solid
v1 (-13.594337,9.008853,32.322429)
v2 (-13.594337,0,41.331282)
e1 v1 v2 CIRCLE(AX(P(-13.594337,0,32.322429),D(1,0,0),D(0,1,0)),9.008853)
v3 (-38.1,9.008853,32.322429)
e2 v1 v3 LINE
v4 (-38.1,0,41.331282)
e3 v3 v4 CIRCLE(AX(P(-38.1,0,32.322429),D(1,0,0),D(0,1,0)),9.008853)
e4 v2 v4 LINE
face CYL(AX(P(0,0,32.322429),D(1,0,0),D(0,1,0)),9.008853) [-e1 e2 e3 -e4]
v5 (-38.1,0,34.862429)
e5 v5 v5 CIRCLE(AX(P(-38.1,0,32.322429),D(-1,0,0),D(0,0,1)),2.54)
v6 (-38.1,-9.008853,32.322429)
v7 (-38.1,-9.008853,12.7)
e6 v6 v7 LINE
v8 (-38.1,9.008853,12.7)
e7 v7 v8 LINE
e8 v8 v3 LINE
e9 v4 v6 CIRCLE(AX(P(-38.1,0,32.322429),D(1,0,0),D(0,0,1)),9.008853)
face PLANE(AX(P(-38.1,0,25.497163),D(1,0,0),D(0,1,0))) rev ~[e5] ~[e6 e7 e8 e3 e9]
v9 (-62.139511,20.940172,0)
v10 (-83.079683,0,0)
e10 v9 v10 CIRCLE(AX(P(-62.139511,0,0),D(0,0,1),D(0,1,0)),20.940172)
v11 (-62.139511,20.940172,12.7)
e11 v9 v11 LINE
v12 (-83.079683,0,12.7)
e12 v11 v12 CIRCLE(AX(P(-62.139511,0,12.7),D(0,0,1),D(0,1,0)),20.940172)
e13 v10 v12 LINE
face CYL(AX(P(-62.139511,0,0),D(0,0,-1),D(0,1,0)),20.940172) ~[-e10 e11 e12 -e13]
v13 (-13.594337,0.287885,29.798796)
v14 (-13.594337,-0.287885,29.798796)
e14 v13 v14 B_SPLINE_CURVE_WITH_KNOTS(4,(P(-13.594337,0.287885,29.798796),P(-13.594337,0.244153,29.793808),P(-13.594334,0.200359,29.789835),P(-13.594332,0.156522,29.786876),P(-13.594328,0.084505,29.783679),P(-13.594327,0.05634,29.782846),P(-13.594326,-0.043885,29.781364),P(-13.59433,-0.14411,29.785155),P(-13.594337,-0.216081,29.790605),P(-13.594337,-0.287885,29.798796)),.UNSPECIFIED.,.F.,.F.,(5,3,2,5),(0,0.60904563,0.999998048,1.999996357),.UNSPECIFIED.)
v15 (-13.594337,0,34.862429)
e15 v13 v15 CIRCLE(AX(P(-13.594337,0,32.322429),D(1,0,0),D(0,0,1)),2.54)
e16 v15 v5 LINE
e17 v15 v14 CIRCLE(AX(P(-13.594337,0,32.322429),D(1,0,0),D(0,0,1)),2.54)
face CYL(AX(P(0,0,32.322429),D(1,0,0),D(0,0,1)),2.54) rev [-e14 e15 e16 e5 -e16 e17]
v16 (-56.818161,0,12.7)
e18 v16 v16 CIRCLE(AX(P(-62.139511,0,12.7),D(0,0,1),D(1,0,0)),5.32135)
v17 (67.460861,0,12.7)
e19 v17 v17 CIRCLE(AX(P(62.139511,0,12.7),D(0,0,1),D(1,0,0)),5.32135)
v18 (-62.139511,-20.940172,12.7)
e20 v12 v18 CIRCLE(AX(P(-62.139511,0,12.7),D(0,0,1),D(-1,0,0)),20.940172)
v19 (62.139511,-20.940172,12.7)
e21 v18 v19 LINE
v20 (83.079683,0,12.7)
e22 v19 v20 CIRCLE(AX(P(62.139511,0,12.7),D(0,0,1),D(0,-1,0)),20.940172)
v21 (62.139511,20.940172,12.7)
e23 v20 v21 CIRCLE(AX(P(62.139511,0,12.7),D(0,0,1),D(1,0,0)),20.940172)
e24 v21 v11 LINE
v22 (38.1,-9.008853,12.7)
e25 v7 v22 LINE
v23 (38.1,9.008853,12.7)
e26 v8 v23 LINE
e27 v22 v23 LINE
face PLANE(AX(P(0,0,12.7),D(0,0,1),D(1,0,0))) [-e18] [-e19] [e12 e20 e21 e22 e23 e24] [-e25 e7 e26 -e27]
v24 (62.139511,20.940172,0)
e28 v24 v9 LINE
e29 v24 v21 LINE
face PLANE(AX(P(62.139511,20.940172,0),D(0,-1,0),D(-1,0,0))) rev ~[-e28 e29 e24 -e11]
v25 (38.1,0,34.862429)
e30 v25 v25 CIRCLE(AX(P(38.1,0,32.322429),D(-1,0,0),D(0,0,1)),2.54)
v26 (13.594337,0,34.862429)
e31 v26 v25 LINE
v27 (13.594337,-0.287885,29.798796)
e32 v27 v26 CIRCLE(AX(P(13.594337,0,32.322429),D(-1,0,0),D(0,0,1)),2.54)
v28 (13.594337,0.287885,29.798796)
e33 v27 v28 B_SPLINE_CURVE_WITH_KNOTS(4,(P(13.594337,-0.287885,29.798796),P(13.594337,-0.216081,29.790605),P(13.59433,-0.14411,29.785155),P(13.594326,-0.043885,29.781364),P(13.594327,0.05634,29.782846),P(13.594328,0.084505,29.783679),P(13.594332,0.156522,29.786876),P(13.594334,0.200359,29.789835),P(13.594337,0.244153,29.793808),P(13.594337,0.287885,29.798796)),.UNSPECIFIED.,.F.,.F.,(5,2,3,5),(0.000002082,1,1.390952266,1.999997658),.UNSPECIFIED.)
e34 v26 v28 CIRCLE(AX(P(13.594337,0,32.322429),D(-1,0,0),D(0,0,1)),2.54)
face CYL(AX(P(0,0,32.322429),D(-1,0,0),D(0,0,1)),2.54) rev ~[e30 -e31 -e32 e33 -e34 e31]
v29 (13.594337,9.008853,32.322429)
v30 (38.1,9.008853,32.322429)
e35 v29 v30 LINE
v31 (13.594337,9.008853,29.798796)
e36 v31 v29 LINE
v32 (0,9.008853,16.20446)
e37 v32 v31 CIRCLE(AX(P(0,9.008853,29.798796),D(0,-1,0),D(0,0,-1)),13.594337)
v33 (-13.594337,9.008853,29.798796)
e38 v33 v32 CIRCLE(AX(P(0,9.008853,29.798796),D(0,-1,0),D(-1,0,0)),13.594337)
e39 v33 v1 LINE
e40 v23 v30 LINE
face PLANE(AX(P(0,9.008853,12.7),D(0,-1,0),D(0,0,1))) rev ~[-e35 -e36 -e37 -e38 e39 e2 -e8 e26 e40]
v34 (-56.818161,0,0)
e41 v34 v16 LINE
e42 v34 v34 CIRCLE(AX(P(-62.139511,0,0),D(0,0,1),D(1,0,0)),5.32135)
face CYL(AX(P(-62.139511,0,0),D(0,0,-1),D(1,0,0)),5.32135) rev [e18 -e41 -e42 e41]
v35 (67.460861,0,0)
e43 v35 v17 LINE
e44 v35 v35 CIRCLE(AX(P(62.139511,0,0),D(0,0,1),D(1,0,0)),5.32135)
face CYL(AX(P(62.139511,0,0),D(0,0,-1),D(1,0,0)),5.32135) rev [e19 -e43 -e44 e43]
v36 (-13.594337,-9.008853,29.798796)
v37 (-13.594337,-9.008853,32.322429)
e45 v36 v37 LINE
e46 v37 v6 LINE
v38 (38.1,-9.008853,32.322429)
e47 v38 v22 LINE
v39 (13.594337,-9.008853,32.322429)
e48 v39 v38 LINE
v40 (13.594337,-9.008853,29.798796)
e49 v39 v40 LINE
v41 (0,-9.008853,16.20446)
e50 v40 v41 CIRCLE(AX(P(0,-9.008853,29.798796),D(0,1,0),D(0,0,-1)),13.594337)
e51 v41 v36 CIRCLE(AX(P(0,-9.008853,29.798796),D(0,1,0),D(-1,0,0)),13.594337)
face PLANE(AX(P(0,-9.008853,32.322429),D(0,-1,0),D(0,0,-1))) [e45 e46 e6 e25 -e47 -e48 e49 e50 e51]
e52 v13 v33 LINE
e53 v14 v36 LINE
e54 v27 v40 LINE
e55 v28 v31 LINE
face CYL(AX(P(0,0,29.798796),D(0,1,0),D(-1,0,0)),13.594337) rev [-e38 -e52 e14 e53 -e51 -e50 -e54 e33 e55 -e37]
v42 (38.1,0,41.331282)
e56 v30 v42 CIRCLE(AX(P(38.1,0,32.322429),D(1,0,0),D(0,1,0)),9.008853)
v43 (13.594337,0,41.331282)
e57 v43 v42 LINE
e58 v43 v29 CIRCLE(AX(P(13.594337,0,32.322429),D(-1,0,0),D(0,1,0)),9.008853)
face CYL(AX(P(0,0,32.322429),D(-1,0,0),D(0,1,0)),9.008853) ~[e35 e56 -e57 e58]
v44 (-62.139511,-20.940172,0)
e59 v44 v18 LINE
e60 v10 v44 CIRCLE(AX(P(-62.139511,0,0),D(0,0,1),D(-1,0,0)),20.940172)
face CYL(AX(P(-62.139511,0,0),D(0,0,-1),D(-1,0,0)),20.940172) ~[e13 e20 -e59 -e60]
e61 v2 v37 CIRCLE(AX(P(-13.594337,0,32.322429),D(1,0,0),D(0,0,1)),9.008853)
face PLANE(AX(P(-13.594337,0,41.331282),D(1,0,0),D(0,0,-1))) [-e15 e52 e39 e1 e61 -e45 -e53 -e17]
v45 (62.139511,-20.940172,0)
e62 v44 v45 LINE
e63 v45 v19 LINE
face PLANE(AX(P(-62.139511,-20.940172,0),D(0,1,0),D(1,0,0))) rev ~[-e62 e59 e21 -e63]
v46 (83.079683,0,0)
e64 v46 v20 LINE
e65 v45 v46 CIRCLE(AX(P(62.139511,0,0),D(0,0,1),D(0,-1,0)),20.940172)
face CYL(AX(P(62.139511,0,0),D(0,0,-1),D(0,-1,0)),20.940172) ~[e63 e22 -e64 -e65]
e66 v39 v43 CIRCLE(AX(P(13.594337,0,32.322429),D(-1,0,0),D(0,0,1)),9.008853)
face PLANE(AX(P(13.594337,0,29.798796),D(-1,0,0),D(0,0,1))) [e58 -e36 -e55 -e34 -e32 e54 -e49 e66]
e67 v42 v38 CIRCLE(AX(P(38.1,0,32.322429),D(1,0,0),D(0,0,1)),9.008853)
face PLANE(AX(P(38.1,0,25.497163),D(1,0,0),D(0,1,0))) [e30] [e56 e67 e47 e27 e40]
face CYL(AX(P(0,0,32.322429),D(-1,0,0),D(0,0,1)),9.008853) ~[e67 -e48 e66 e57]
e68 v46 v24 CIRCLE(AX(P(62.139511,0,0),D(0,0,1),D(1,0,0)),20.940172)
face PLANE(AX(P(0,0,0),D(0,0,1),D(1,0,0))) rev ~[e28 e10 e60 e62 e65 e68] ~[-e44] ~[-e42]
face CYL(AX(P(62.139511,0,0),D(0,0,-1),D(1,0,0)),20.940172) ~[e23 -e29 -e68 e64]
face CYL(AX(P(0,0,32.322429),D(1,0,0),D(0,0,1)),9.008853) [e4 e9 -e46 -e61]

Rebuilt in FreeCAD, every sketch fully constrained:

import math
import FreeCAD as App
import Part
import Sketcher
Q = App.Units.Quantity

doc = App.newDocument("Part")
body = doc.addObject("PartDesign::Body", "Body")

# Sketch on XY plane
sketch1 = body.newObject("Sketcher::SketchObject", "Sketch")
sketch1.AttachmentSupport = (doc.getObject("XY_Plane"), [""])
sketch1.MapMode = "FlatFace"
sketch1.addGeometry([
    Part.LineSegment(App.Vector(62.139511, 20.940172, 0), App.Vector(-62.139511, 20.940172, 0)),  # 0
    Part.ArcOfCircle(Part.Circle(App.Vector(-62.139511, 0, 0), App.Vector(0, 0, 1), 20.940172), math.radians(90), math.radians(180)),  # 1
    Part.ArcOfCircle(Part.Circle(App.Vector(-62.139511, 0, 0), App.Vector(0, 0, 1), 20.940172), math.radians(180), math.radians(270)),  # 2
    Part.LineSegment(App.Vector(-62.139511, -20.940172, 0), App.Vector(62.139511, -20.940172, 0)),  # 3
    Part.ArcOfCircle(Part.Circle(App.Vector(62.139511, 0, 0), App.Vector(0, 0, 1), 20.940172), math.radians(-90), math.radians(0)),  # 4
    Part.ArcOfCircle(Part.Circle(App.Vector(62.139511, 0, 0), App.Vector(0, 0, 1), 20.940172), math.radians(0), math.radians(90)),  # 5
    Part.Circle(App.Vector(-62.139511, 0, 0), App.Vector(0, 0, 1), 5.32135),  # 6
    Part.Circle(App.Vector(62.139511, 0, 0), App.Vector(0, 0, 1), 5.32135),  # 7
], False)
sketch1.addConstraint([
    Sketcher.Constraint("Tangent", 0, 2, 1, 1),
    Sketcher.Constraint("Tangent", 1, 2, 2, 1),
    Sketcher.Constraint("Tangent", 2, 2, 3, 1),
    Sketcher.Constraint("Tangent", 3, 2, 4, 1),
    Sketcher.Constraint("Tangent", 4, 2, 5, 1),
    Sketcher.Constraint("Tangent", 5, 2, 0, 1),
    Sketcher.Constraint("Horizontal", 0),
    Sketcher.Constraint("Horizontal", 3),
    Sketcher.Constraint("Coincident", 6, 3, 1, 3),
    Sketcher.Constraint("Coincident", 7, 3, 4, 3),
    Sketcher.Constraint("Equal", 1, 2),
    Sketcher.Constraint("Equal", 2, 4),
    Sketcher.Constraint("Equal", 6, 7),
    Sketcher.Constraint("Symmetric", 1, 3, 4, 3, -1, 1),
    Sketcher.Constraint("PointOnObject", 1, 2, -1),
    Sketcher.Constraint("PointOnObject", 4, 2, -1),
    Sketcher.Constraint("Diameter", 6, Q("10.6427 mm")),
    Sketcher.Constraint("Radius", 1, Q("20.940172 mm")),
    Sketcher.Constraint("DistanceX", 0, 2, 0, 1, Q("124.279022 mm")),
])
pad1 = body.newObject("PartDesign::Pad", "Pad")
pad1.Profile = sketch1
pad1.Length = Q("0.5 in")

# Sketch on YZ plane
sketch2 = body.newObject("Sketcher::SketchObject", "Sketch001")
sketch2.AttachmentSupport = (doc.getObject("YZ_Plane"), [""])
sketch2.MapMode = "FlatFace"
sketch2.addGeometry([
    Part.LineSegment(App.Vector(-9.008853, 12.7, 0), App.Vector(9.008853, 12.7, 0)),  # 0
    Part.LineSegment(App.Vector(9.008853, 12.7, 0), App.Vector(9.008853, 32.322429, 0)),  # 1
    Part.ArcOfCircle(Part.Circle(App.Vector(0, 32.322429, 0), App.Vector(0, 0, 1), 9.008853), math.radians(0), math.radians(90)),  # 2
    Part.ArcOfCircle(Part.Circle(App.Vector(0, 32.322429, 0), App.Vector(0, 0, 1), 9.008853), math.radians(90), math.radians(180)),  # 3
    Part.LineSegment(App.Vector(-9.008853, 32.322429, 0), App.Vector(-9.008853, 12.7, 0)),  # 4
    Part.Circle(App.Vector(0, 32.322429, 0), App.Vector(0, 0, 1), 2.54),  # 5
], False)
sketch2.addConstraint([
    Sketcher.Constraint("Coincident", 0, 2, 1, 1),
    Sketcher.Constraint("Tangent", 1, 2, 2, 1),
    Sketcher.Constraint("Tangent", 2, 2, 3, 1),
    Sketcher.Constraint("Tangent", 3, 2, 4, 1),
    Sketcher.Constraint("Coincident", 4, 2, 0, 1),
    Sketcher.Constraint("Horizontal", 0),
    Sketcher.Constraint("Vertical", 1),
    Sketcher.Constraint("Vertical", 4),
    Sketcher.Constraint("Coincident", 5, 3, 2, 3),
    Sketcher.Constraint("Equal", 2, 3),
    Sketcher.Constraint("PointOnObject", 2, 3, -2),
    Sketcher.Constraint("PointOnObject", 2, 2, -2),
    Sketcher.Constraint("Diameter", 5, Q("0.2 in")),
    Sketcher.Constraint("DistanceY", -1, 1, 0, 2, Q("0.5 in")),
    Sketcher.Constraint("Radius", 2, Q("9.008853 mm")),
    Sketcher.Constraint("DistanceY", 1, 1, 1, 2, Q("19.622429 mm")),
])
pad2 = body.newObject("PartDesign::Pad", "Pad001")
pad2.Profile = sketch2
pad2.Type = "TwoLengths"
pad2.Length = Q("1.5 in")
pad2.Length2 = Q("1.5 in")

# Sketch on XZ plane
sketch3 = body.newObject("Sketcher::SketchObject", "Sketch002")
sketch3.AttachmentSupport = (doc.getObject("XZ_Plane"), [""])
sketch3.MapMode = "FlatFace"
sketch3.addGeometry([
    Part.LineSegment(App.Vector(13.594337, 41.331282, 0), App.Vector(-13.594337, 41.331282, 0)),  # 0
    Part.LineSegment(App.Vector(-13.594337, 41.331282, 0), App.Vector(-13.594337, 29.798796, 0)),  # 1
    Part.ArcOfCircle(Part.Circle(App.Vector(0, 29.798796, 0), App.Vector(0, 0, 1), 13.594337), math.radians(180), math.radians(270)),  # 2
    Part.ArcOfCircle(Part.Circle(App.Vector(0, 29.798796, 0), App.Vector(0, 0, 1), 13.594337), math.radians(-90), math.radians(0)),  # 3
    Part.LineSegment(App.Vector(13.594337, 29.798796, 0), App.Vector(13.594337, 41.331282, 0)),  # 4
], False)
sketch3.addConstraint([
    Sketcher.Constraint("Coincident", 0, 2, 1, 1),
    Sketcher.Constraint("Tangent", 1, 2, 2, 1),
    Sketcher.Constraint("Tangent", 2, 2, 3, 1),
    Sketcher.Constraint("Tangent", 3, 2, 4, 1),
    Sketcher.Constraint("Coincident", 4, 2, 0, 1),
    Sketcher.Constraint("Horizontal", 0),
    Sketcher.Constraint("Vertical", 1),
    Sketcher.Constraint("Vertical", 4),
    Sketcher.Constraint("Equal", 2, 3),
    Sketcher.Constraint("PointOnObject", 2, 3, -2),
    Sketcher.Constraint("PointOnObject", 2, 2, -2),
    Sketcher.Constraint("Radius", 2, Q("13.594337 mm")),
    Sketcher.Constraint("DistanceY", 1, 2, 1, 1, Q("11.532486 mm")),
    Sketcher.Constraint("DistanceY", -1, 1, 2, 2, Q("16.20446 mm")),
])
pocket1 = body.newObject("PartDesign::Pocket", "Pocket")
pocket1.Profile = sketch3
pocket1.Type = "ThroughAll"
pocket1.Midplane = True

doc.recompute()
